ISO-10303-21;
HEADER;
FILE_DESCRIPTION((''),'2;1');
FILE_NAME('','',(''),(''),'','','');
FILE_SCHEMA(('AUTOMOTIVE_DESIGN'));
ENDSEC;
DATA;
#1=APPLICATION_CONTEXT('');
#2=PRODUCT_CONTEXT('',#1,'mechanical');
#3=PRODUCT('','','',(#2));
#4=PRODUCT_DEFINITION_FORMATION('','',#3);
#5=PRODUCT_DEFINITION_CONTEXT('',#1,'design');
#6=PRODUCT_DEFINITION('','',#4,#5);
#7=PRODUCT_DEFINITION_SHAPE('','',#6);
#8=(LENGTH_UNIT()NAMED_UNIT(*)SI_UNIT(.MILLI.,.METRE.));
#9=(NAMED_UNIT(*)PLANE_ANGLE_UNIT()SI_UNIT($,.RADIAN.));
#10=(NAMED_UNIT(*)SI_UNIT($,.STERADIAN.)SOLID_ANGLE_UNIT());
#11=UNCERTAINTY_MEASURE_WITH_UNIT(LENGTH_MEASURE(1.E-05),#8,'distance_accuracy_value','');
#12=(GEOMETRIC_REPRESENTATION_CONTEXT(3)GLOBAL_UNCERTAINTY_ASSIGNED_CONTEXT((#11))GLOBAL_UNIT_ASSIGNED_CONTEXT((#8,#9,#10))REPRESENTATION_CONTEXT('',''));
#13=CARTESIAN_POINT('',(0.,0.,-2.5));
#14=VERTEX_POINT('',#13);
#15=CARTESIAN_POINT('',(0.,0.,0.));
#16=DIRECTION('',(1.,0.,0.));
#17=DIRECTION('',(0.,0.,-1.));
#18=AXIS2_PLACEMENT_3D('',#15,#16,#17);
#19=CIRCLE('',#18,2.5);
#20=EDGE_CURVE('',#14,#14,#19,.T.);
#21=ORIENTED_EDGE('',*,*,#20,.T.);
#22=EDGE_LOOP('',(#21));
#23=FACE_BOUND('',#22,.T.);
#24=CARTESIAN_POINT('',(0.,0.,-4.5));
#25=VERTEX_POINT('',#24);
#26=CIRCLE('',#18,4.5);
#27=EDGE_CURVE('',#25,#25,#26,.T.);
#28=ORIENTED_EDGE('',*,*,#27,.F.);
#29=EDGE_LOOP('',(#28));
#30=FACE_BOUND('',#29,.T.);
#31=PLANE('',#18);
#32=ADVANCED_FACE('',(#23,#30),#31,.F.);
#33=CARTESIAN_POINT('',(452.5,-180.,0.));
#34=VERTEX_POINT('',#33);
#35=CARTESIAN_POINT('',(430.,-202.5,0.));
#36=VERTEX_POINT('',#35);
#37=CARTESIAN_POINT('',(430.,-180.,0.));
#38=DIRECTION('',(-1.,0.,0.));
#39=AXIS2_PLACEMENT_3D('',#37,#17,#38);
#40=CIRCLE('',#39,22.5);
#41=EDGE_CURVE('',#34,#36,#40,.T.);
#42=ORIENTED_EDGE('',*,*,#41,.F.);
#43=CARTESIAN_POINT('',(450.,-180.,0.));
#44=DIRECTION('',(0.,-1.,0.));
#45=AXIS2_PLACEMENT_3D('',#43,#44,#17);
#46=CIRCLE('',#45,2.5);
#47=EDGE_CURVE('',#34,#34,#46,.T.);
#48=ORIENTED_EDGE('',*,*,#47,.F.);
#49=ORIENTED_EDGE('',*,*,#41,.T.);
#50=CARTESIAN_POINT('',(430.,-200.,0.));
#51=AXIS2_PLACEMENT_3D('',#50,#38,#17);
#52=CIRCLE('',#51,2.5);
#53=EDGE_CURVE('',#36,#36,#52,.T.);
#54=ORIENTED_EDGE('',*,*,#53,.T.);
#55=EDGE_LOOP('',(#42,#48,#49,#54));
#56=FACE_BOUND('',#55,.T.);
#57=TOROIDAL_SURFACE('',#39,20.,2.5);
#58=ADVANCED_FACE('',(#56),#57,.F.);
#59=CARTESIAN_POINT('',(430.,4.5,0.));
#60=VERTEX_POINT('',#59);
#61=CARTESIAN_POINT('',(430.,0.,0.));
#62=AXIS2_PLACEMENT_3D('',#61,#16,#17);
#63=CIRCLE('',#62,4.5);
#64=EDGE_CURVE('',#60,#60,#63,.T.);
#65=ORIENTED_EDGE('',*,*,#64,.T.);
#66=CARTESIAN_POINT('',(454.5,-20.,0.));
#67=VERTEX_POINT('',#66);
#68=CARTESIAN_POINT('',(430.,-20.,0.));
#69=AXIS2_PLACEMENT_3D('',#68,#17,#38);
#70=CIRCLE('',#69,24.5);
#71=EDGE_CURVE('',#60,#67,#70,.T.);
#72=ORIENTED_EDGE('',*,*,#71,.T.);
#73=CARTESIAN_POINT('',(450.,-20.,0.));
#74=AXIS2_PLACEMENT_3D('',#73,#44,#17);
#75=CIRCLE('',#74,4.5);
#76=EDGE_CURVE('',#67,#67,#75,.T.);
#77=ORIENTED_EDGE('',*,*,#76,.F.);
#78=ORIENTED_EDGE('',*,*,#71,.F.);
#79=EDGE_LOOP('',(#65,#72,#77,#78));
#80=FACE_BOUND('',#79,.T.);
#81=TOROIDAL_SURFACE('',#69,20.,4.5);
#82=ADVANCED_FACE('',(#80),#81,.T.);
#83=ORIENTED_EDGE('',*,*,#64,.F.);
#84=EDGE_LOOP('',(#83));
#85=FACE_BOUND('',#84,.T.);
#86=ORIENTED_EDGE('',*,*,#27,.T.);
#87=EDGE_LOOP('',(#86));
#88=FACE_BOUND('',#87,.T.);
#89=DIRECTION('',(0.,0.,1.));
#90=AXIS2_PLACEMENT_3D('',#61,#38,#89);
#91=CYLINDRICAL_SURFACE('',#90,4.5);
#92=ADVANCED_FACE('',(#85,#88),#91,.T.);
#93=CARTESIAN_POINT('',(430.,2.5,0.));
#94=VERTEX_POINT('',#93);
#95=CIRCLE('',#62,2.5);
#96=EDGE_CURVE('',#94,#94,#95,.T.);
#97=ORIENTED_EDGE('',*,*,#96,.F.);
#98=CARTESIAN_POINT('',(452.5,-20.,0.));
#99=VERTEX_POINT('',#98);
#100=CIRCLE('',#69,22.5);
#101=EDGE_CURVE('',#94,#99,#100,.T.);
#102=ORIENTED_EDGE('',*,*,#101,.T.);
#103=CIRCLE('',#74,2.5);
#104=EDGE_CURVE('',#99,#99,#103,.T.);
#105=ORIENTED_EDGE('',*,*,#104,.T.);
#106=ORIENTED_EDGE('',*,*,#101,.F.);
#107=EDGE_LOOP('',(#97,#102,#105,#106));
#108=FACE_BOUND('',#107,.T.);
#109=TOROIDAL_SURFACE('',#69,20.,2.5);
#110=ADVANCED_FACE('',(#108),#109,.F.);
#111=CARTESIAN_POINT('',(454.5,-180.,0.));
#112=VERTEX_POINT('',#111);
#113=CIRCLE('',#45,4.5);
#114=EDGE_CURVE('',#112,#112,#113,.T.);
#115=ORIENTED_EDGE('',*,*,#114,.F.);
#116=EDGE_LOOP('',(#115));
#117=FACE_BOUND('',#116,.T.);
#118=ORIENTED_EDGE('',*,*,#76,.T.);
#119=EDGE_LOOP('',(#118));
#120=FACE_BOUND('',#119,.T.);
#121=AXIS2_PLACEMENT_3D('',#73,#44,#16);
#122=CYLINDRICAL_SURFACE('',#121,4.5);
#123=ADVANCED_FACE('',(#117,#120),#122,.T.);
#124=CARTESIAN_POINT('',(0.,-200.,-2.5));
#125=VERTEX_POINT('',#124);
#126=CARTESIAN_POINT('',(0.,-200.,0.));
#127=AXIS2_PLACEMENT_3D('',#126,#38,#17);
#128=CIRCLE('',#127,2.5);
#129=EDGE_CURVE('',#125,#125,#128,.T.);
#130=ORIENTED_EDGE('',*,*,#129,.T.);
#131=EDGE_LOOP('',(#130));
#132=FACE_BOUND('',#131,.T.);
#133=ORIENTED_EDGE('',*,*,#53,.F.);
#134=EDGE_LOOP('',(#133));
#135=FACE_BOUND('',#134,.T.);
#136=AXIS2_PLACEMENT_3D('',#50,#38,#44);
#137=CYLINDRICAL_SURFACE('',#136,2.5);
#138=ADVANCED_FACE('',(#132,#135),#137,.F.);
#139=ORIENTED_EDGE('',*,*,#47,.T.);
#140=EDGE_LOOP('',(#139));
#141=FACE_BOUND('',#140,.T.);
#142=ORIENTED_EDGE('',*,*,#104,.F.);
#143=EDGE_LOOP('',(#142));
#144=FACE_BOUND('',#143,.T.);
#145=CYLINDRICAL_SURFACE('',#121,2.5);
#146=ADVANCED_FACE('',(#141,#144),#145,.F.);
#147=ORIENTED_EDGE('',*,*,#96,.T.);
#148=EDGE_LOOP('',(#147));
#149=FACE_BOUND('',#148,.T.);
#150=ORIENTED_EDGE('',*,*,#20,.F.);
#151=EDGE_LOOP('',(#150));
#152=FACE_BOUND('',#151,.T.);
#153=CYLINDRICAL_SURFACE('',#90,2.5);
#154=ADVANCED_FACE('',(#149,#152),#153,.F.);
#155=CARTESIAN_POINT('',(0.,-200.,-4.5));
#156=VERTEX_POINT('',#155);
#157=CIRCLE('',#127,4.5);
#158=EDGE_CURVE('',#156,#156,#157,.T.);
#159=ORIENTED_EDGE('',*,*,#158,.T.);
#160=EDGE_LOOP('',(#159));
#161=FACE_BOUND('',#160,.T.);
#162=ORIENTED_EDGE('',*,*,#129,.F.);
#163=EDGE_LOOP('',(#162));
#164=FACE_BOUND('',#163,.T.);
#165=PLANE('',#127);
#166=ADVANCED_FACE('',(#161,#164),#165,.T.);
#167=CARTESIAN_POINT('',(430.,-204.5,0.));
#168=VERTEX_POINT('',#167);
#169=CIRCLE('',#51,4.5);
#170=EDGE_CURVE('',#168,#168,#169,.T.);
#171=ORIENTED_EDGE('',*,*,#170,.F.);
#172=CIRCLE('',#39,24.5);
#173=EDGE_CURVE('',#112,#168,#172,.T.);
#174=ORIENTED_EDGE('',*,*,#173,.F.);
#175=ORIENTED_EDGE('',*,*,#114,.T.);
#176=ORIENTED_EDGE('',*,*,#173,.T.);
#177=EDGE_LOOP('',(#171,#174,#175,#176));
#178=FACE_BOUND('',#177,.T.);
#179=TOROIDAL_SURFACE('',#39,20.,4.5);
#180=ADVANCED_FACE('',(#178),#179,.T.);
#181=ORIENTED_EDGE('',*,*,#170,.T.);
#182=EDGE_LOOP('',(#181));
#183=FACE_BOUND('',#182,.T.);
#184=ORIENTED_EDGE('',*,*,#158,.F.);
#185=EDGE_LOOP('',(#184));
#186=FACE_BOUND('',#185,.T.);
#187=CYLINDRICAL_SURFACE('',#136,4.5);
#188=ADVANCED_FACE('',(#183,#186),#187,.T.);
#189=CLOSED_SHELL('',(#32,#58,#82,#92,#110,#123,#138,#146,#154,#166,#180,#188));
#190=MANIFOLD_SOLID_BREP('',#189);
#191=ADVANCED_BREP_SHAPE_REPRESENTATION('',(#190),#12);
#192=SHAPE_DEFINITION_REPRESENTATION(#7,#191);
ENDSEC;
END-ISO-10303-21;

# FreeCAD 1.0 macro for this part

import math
import FreeCAD as App
import Part
import Sketcher

V = App.Vector

doc = App.newDocument("Part")
body = doc.addObject("PartDesign::Body", "Body")

# Sketch on YZ plane
sketch1 = body.newObject("Sketcher::SketchObject", "Sketch")
sketch1.AttachmentSupport = (doc.getObject("YZ_Plane"), [""])
sketch1.MapMode = "FlatFace"
sketch1.addGeometry(Part.Circle(V(0, 0, 0), V(0, 0, 1), 4.5), False)
sketch1.addGeometry(Part.Circle(V(0, 0, 0), V(0, 0, 1), 2.5), False)
sketch1.addConstraint(Sketcher.Constraint("Coincident", 0, 3, -1, 1))
sketch1.addConstraint(Sketcher.Constraint("Coincident", 1, 3, -1, 1))
sketch1.addConstraint(Sketcher.Constraint("Diameter", 0, 9.0))
sketch1.addConstraint(Sketcher.Constraint("Diameter", 1, 5.0))

# Sketch on XY plane
sketch2 = body.newObject("Sketcher::SketchObject", "Sketch001")
sketch2.AttachmentSupport = (doc.getObject("XY_Plane"), [""])
sketch2.MapMode = "FlatFace"
sketch2.addGeometry(Part.LineSegment(V(0, 0, 0), V(430, 0, 0)), False)
sketch2.addGeometry(Part.ArcOfCircle(Part.Circle(V(430, -20, 0), V(0, 0, 1), 20), math.radians(0), math.radians(90)), False)
sketch2.addGeometry(Part.LineSegment(V(450, -20, 0), V(450, -180, 0)), False)
sketch2.addGeometry(Part.ArcOfCircle(Part.Circle(V(430, -180, 0), V(0, 0, 1), 20), math.radians(-90), math.radians(0)), False)
sketch2.addGeometry(Part.LineSegment(V(430, -200, 0), V(0, -200, 0)), False)
sketch2.addConstraint(Sketcher.Constraint("Tangent", 0, 2, 1, 2))
sketch2.addConstraint(Sketcher.Constraint("Tangent", 1, 1, 2, 1))
sketch2.addConstraint(Sketcher.Constraint("Tangent", 2, 2, 3, 2))
sketch2.addConstraint(Sketcher.Constraint("Tangent", 3, 1, 4, 1))
sketch2.addConstraint(Sketcher.Constraint("Horizontal", 0))
sketch2.addConstraint(Sketcher.Constraint("Vertical", 2))
sketch2.addConstraint(Sketcher.Constraint("Horizontal", 4))
sketch2.addConstraint(Sketcher.Constraint("Coincident", 0, 1, -1, 1))
sketch2.addConstraint(Sketcher.Constraint("Equal", 1, 3))
sketch2.addConstraint(Sketcher.Constraint("PointOnObject", 4, 2, -2))
sketch2.addConstraint(Sketcher.Constraint("Radius", 1, 20.0))
sketch2.addConstraint(Sketcher.Constraint("DistanceX", 0, 1, 0, 2, 430.0))
sketch2.addConstraint(Sketcher.Constraint("DistanceY", 2, 2, 2, 1, 160.0))
doc.recompute()

additivepipe = body.newObject("PartDesign::AdditivePipe", "AdditivePipe")
additivepipe.Profile = sketch1
additivepipe.Spine = (sketch2, ["Edge1", "Edge2", "Edge3", "Edge4", "Edge5"])

doc.recompute()
